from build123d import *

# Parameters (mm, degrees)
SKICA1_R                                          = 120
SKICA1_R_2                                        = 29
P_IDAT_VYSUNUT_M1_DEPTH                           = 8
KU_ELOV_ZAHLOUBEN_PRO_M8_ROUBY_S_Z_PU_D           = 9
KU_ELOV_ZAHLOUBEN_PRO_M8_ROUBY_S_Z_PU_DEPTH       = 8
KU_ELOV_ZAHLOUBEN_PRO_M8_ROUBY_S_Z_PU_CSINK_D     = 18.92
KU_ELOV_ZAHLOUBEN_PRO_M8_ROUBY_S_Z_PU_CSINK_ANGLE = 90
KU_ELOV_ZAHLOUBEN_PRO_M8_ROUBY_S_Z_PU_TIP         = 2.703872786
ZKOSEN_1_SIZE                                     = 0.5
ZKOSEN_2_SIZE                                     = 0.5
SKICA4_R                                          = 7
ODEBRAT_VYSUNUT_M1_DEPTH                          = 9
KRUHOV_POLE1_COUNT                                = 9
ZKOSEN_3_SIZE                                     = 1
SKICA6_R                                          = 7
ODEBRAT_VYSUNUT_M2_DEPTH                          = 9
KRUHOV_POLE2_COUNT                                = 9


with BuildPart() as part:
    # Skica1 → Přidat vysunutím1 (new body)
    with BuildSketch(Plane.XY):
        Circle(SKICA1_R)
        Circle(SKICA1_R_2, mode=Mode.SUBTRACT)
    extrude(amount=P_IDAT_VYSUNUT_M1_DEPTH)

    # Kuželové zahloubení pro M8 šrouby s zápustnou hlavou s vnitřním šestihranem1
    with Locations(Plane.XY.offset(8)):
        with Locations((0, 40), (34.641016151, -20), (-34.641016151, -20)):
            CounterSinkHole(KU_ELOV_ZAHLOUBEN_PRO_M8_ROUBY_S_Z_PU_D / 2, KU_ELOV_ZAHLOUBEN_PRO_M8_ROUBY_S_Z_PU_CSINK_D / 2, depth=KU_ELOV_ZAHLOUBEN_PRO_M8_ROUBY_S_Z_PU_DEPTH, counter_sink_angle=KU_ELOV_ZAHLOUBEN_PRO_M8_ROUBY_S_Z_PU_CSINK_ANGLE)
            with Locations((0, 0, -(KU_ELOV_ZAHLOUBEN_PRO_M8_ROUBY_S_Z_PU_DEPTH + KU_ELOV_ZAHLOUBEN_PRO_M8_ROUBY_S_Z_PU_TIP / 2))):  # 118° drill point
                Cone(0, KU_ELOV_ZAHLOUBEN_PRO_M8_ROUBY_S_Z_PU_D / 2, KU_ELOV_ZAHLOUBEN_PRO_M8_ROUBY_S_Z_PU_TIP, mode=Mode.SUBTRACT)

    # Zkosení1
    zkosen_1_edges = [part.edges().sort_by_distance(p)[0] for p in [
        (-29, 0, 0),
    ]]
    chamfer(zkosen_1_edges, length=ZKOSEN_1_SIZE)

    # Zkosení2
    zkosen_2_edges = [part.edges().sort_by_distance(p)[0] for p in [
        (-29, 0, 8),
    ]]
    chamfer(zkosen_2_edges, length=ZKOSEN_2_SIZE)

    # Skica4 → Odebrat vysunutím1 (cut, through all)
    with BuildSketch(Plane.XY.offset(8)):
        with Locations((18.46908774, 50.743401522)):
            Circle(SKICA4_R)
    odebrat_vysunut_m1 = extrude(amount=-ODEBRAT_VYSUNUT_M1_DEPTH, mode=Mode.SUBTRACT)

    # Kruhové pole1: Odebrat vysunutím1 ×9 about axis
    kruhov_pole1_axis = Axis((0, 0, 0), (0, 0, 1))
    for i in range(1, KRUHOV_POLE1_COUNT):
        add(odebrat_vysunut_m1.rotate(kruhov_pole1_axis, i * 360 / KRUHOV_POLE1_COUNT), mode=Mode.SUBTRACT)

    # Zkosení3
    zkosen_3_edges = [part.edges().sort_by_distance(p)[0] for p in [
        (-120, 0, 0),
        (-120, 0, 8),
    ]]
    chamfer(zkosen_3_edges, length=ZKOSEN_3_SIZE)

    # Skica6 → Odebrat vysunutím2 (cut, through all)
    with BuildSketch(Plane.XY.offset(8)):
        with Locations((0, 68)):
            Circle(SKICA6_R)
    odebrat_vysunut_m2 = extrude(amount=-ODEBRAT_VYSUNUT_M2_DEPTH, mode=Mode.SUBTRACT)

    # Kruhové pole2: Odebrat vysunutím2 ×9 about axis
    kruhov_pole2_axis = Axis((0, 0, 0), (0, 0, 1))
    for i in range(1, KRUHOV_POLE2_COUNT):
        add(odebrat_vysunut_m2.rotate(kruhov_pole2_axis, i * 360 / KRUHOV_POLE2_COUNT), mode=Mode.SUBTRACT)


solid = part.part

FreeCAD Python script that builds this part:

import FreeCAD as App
import Part
import Sketcher
from FreeCAD import Vector
Q = App.Units.Quantity


def edges_at(feature, points):
    """Names of the edges that pass closest to the given points."""
    edges = feature.Shape.Edges
    near = lambda p: min(range(len(edges)), key=lambda i: edges[i].distToShape(Part.Vertex(*p))[0])
    return sorted({f"Edge{near(p) + 1}" for p in points})

doc = App.newDocument("Part")
body = doc.addObject("PartDesign::Body", "Body")

# Sketch on XY plane
sketch1 = doc.addObject("Sketcher::SketchObject", "Sketch")
body.addObject(sketch1)
sketch1.AttachmentSupport = (doc.XY_Plane, [""])
sketch1.MapMode = "FlatFace"
sketch1.addGeometry([
    Part.Circle(Vector(0, 0, 0), Vector(0, 0, 1), 120),
    Part.Circle(Vector(0, 0, 0), Vector(0, 0, 1), 29),
], False)
sketch1.addConstraint([
    Sketcher.Constraint("Coincident", 0, 3, -1, 1),
    Sketcher.Constraint("Coincident", 1, 3, -1, 1),
    Sketcher.Constraint("Diameter", 0, Q("240 mm")),
    Sketcher.Constraint("Diameter", 1, Q("58 mm")),
])
pad1 = doc.addObject("PartDesign::Pad", "Pad")
body.addObject(pad1)
pad1.Profile = sketch1
pad1.Length = 8

# Sketch on XY plane
sketch2 = doc.addObject("Sketcher::SketchObject", "Sketch001")
body.addObject(sketch2)
sketch2.AttachmentSupport = (doc.XY_Plane, [""])
sketch2.MapMode = "FlatFace"
sketch2.AttachmentOffset = App.Placement(Vector(0, 0, 8), App.Rotation())
sketch2.addGeometry([
    Part.Circle(Vector(0, 40, 0), Vector(0, 0, 1), 4.5),
    Part.Circle(Vector(34.6, -20, 0), Vector(0, 0, 1), 4.5),
    Part.Circle(Vector(-34.6, -20, 0), Vector(0, 0, 1), 4.5),
], False)
sketch2.addConstraint([
    Sketcher.Constraint("Equal", 0, 1),
    Sketcher.Constraint("Equal", 1, 2),
    Sketcher.Constraint("Symmetric", 1, 3, 2, 3, -2),
    Sketcher.Constraint("PointOnObject", 0, 3, -2),
    Sketcher.Constraint("Diameter", 0, Q("9 mm")),
    Sketcher.Constraint("DistanceY", -1, 1, 0, 3, Q("40 mm")),
    Sketcher.Constraint("DistanceY", 1, 3, -1, 1, Q("20 mm")),
    Sketcher.Constraint("DistanceX", -1, 1, 1, 3, Q("34.641016 mm")),
])
doc.recompute()
hole = doc.addObject("PartDesign::Hole", "Hole")
body.addObject(hole)
hole.Profile = sketch2
hole.ThreadType = "None"
hole.Diameter = 9
hole.DepthType = "Dimension"
hole.Depth = 8
hole.DrillPoint = "Angled"
hole.DrillPointAngle = 118
hole.HoleCutType = "Countersink"
hole.HoleCutDiameter = 18.92
hole.HoleCutCountersinkAngle = 90
doc.recompute()

chamfer = doc.addObject("PartDesign::Chamfer", "Chamfer")
body.addObject(chamfer)
chamfer.Base = (hole, edges_at(hole, [(-29, 0, 0)]))
chamfer.Size = 0.5
doc.recompute()

chamfer2 = doc.addObject("PartDesign::Chamfer", "Chamfer001")
body.addObject(chamfer2)
chamfer2.Base = (chamfer, edges_at(chamfer, [(-29, 0, 8)]))
chamfer2.Size = 0.5

# Sketch on XY plane
sketch3 = doc.addObject("Sketcher::SketchObject", "Sketch002")
body.addObject(sketch3)
sketch3.AttachmentSupport = (doc.XY_Plane, [""])
sketch3.MapMode = "FlatFace"
sketch3.AttachmentOffset = App.Placement(Vector(0, 0, 8), App.Rotation())
sketch3.addGeometry(Part.Circle(Vector(18, 51, 0), Vector(0, 0, 1), 7), False)
sketch3.addConstraint([
    Sketcher.Constraint("Diameter", 0, Q("14 mm")),
    Sketcher.Constraint("DistanceY", -1, 1, 0, 3, Q("50.743402 mm")),
    Sketcher.Constraint("DistanceX", -1, 1, 0, 3, Q("18.469088 mm")),
])
pocket1 = doc.addObject("PartDesign::Pocket", "Pocket")
body.addObject(pocket1)
pocket1.Profile = sketch3
pocket1.Type = "ThroughAll"
doc.recompute()

polarpattern = doc.addObject("PartDesign::PolarPattern", "PolarPattern")
body.addObject(polarpattern)
polarpattern.Originals = [pocket1]
polarpattern.Axis = (doc.Z_Axis, [""])
polarpattern.Angle = 360
polarpattern.Occurrences = 9
body.Tip = polarpattern
doc.recompute()

chamfer3 = doc.addObject("PartDesign::Chamfer", "Chamfer002")
body.addObject(chamfer3)
chamfer3.Base = (polarpattern, edges_at(polarpattern, [(-120, 0, 0), (-120, 0, 8)]))
chamfer3.Size = 1

# Sketch on XY plane
sketch4 = doc.addObject("Sketcher::SketchObject", "Sketch003")
body.addObject(sketch4)
sketch4.AttachmentSupport = (doc.XY_Plane, [""])
sketch4.MapMode = "FlatFace"
sketch4.AttachmentOffset = App.Placement(Vector(0, 0, 8), App.Rotation())
sketch4.addGeometry(Part.Circle(Vector(0, 68, 0), Vector(0, 0, 1), 7), False)
sketch4.addConstraint([
    Sketcher.Constraint("PointOnObject", 0, 3, -2),
    Sketcher.Constraint("Diameter", 0, Q("14 mm")),
    Sketcher.Constraint("DistanceY", -1, 1, 0, 3, Q("68 mm")),
])
pocket2 = doc.addObject("PartDesign::Pocket", "Pocket001")
body.addObject(pocket2)
pocket2.Profile = sketch4
pocket2.Type = "ThroughAll"
doc.recompute()

polarpattern2 = doc.addObject("PartDesign::PolarPattern", "PolarPattern001")
body.addObject(polarpattern2)
polarpattern2.Originals = [pocket2]
polarpattern2.Axis = (doc.Z_Axis, [""])
polarpattern2.Angle = 360
polarpattern2.Occurrences = 9
body.Tip = polarpattern2

doc.recompute()
